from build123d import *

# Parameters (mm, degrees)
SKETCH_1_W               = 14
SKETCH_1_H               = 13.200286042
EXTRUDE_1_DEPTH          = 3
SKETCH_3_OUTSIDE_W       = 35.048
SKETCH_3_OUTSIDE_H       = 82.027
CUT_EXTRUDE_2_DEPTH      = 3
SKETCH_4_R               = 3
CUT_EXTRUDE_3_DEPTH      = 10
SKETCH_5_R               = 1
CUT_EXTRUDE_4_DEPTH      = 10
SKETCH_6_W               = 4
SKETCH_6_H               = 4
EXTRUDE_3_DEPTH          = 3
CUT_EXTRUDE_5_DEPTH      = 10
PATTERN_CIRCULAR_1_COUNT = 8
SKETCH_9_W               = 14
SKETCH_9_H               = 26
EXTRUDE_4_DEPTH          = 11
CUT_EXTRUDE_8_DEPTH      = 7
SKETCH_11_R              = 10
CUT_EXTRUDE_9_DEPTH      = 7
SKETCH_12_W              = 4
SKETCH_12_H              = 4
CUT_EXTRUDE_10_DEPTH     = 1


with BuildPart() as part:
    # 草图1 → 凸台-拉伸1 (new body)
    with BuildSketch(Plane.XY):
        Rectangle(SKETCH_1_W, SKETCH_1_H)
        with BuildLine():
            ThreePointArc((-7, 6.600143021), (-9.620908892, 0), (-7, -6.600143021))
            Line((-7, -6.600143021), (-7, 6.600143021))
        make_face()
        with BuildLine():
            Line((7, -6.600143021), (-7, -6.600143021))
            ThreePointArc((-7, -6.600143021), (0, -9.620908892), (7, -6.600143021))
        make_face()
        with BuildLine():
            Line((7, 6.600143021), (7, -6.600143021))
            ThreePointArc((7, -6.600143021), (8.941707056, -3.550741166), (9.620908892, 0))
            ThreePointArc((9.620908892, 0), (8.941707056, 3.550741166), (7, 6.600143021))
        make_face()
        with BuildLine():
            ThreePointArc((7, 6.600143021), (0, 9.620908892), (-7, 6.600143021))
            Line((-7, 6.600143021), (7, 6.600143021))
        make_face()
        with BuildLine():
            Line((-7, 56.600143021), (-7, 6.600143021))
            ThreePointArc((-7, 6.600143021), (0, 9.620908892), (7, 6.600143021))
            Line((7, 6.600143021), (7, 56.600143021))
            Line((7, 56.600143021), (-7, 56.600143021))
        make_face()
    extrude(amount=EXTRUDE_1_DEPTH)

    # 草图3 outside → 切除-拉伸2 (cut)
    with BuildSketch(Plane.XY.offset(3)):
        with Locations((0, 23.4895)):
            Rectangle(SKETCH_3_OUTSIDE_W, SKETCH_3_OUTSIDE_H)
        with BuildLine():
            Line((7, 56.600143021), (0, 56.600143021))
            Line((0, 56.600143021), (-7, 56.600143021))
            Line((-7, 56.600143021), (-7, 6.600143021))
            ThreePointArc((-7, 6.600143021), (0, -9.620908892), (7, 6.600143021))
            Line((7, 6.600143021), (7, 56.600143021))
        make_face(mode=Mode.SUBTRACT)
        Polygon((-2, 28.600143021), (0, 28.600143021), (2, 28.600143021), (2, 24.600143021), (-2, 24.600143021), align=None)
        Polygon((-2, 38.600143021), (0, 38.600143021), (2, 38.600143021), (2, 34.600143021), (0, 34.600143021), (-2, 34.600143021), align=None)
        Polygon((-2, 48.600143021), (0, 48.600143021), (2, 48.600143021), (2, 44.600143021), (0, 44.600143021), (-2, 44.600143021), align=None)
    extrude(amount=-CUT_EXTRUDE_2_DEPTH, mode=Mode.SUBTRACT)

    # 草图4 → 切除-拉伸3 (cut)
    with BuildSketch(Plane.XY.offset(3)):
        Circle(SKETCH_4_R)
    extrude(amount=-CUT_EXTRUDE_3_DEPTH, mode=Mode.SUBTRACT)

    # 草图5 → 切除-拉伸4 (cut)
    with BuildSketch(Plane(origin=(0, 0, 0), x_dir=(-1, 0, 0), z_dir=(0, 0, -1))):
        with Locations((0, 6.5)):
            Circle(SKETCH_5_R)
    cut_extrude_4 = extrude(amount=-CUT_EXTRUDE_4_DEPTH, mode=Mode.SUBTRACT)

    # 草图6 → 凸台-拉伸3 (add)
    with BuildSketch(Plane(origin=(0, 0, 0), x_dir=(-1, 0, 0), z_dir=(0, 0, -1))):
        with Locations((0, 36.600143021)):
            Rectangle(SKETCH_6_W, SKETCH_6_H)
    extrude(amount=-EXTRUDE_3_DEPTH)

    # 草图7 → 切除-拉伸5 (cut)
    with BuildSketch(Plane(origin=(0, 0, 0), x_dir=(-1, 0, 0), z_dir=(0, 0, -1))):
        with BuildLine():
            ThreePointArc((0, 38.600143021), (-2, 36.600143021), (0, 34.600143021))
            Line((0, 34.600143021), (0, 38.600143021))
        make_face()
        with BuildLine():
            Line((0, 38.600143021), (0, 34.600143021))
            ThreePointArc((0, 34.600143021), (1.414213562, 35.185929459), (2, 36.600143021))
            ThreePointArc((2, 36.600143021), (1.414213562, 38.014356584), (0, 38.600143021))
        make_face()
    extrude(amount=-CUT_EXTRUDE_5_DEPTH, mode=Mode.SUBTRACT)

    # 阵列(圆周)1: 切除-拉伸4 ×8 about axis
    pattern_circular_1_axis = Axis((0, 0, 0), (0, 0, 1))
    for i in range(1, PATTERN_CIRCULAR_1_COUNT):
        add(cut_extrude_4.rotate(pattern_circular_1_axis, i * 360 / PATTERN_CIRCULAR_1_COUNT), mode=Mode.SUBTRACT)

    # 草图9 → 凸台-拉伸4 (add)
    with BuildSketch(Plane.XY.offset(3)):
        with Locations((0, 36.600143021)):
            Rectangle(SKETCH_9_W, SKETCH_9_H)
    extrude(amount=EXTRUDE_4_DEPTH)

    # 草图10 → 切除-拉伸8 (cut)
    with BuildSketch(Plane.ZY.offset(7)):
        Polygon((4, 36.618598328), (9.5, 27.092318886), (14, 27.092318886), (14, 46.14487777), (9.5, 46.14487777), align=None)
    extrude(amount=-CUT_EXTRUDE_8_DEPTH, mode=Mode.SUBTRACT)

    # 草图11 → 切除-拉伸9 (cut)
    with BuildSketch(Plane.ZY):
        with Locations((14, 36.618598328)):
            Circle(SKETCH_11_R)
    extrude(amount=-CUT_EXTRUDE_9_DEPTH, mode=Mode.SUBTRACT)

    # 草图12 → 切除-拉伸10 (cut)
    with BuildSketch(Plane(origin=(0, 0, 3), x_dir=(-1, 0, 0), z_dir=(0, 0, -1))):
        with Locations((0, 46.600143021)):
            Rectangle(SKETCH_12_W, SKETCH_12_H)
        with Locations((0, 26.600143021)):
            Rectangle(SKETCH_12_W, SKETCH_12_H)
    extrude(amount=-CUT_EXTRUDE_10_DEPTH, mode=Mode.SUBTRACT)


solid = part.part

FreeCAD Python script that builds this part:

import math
import FreeCAD as App
import Part
import Sketcher
Q = App.Units.Quantity

doc = App.newDocument("Part")
body = doc.addObject("PartDesign::Body", "Body")

# Sketch on XY plane
sketch1 = body.newObject("Sketcher::SketchObject", "Sketch")
sketch1.AttachmentSupport = (doc.getObject("XY_Plane"), [""])
sketch1.MapMode = "FlatFace"
sketch1.addGeometry([
    Part.ArcOfCircle(Part.Circle(App.Vector(0, 0, 0), App.Vector(0, 0, 1), 10), math.radians(137), math.radians(223)),  # 0
    Part.ArcOfCircle(Part.Circle(App.Vector(0, 0, 0), App.Vector(0, 0, 1), 10), math.radians(-137), math.radians(-43)),  # 1
    Part.ArcOfCircle(Part.Circle(App.Vector(0, 0, 0), App.Vector(0, 0, 1), 10), math.radians(-43), math.radians(0)),  # 2
    Part.ArcOfCircle(Part.Circle(App.Vector(0, 0, 0), App.Vector(0, 0, 1), 10), math.radians(0), math.radians(43)),  # 3
    Part.LineSegment(App.Vector(7, 7, 0), App.Vector(7, 57, 0)),  # 4
    Part.LineSegment(App.Vector(7, 57, 0), App.Vector(-7, 57, 0)),  # 5
    Part.LineSegment(App.Vector(-7, 57, 0), App.Vector(-7, 7, 0)),  # 6
], False)
sketch1.addConstraint([
    Sketcher.Constraint("Tangent", 0, 2, 1, 1),
    Sketcher.Constraint("Tangent", 1, 2, 2, 1),
    Sketcher.Constraint("Tangent", 2, 2, 3, 1),
    Sketcher.Constraint("Coincident", 3, 2, 4, 1),
    Sketcher.Constraint("Coincident", 4, 2, 5, 1),
    Sketcher.Constraint("Coincident", 5, 2, 6, 1),
    Sketcher.Constraint("Coincident", 6, 2, 0, 1),
    Sketcher.Constraint("Vertical", 4),
    Sketcher.Constraint("Horizontal", 5),
    Sketcher.Constraint("Vertical", 6),
    Sketcher.Constraint("Coincident", 0, 3, -1, 1),
    Sketcher.Constraint("Coincident", 2, 3, -1, 1),
    Sketcher.Constraint("Equal", 2, 3),
    Sketcher.Constraint("PointOnObject", 2, 2, -1),
    Sketcher.Constraint("Horizontal", 0, 2, 1, 2),
    Sketcher.Constraint("Horizontal", 3, 2, 6, 2),
    Sketcher.Constraint("Vertical", 1, 2, 3, 2),
    Sketcher.Constraint("DistanceX", 5, 2, 5, 1, 14.0),
    Sketcher.Constraint("DistanceY", 4, 1, 4, 2, 50.0),
    Sketcher.Constraint("Radius", 0, 9.620909),
])
pad1 = body.newObject("PartDesign::Pad", "Pad")
pad1.Profile = sketch1
pad1.Length = 3

# Sketch on XY plane
sketch2 = body.newObject("Sketcher::SketchObject", "Sketch001")
sketch2.AttachmentSupport = (doc.getObject("XY_Plane"), [""])
sketch2.MapMode = "FlatFace"
sketch2.AttachmentOffset = App.Placement(App.Vector(0, 0, 3), App.Rotation())
sketch2.addGeometry([
    Part.LineSegment(App.Vector(-17.5, 64.5, 0), App.Vector(-17.5, -17.5, 0)),  # 0
    Part.LineSegment(App.Vector(-17.5, -17.5, 0), App.Vector(17.5, -17.5, 0)),  # 1
    Part.LineSegment(App.Vector(17.5, -17.5, 0), App.Vector(17.5, 64.5, 0)),  # 2
    Part.LineSegment(App.Vector(17.5, 64.5, 0), App.Vector(-17.5, 64.5, 0)),  # 3
    Part.LineSegment(App.Vector(-7, 56.6, 0), App.Vector(7, 56.6, 0)),  # 4
    Part.LineSegment(App.Vector(7, 56.6, 0), App.Vector(7, 6.6, 0)),  # 5
    Part.ArcOfCircle(Part.Circle(App.Vector(0, 0, 0), App.Vector(0, 0, 1), 9.6), math.radians(137), math.radians(403)),  # 6
    Part.LineSegment(App.Vector(-7, 6.6, 0), App.Vector(-7, 56.6, 0)),  # 7
    Part.LineSegment(App.Vector(2, 28.6, 0), App.Vector(-2, 28.6, 0)),  # 8
    Part.LineSegment(App.Vector(-2, 28.6, 0), App.Vector(-2, 24.6, 0)),  # 9
    Part.LineSegment(App.Vector(-2, 24.6, 0), App.Vector(2, 24.6, 0)),  # 10
    Part.LineSegment(App.Vector(2, 24.6, 0), App.Vector(2, 28.6, 0)),  # 11
    Part.LineSegment(App.Vector(2, 38.6, 0), App.Vector(-2, 38.6, 0)),  # 12
    Part.LineSegment(App.Vector(-2, 38.6, 0), App.Vector(-2, 34.6, 0)),  # 13
    Part.LineSegment(App.Vector(-2, 34.6, 0), App.Vector(2, 34.6, 0)),  # 14
    Part.LineSegment(App.Vector(2, 34.6, 0), App.Vector(2, 38.6, 0)),  # 15
    Part.LineSegment(App.Vector(2, 48.6, 0), App.Vector(-2, 48.6, 0)),  # 16
    Part.LineSegment(App.Vector(-2, 48.6, 0), App.Vector(-2, 44.6, 0)),  # 17
    Part.LineSegment(App.Vector(-2, 44.6, 0), App.Vector(2, 44.6, 0)),  # 18
    Part.LineSegment(App.Vector(2, 44.6, 0), App.Vector(2, 48.6, 0)),  # 19
], False)
sketch2.addConstraint([
    Sketcher.Constraint("Coincident", 0, 2, 1, 1),
    Sketcher.Constraint("Coincident", 1, 2, 2, 1),
    Sketcher.Constraint("Coincident", 2, 2, 3, 1),
    Sketcher.Constraint("Coincident", 3, 2, 0, 1),
    Sketcher.Constraint("Coincident", 4, 2, 5, 1),
    Sketcher.Constraint("Coincident", 5, 2, 6, 2),
    Sketcher.Constraint("Coincident", 6, 1, 7, 1),
    Sketcher.Constraint("Coincident", 7, 2, 4, 1),
    Sketcher.Constraint("Coincident", 8, 2, 9, 1),
    Sketcher.Constraint("Coincident", 9, 2, 10, 1),
    Sketcher.Constraint("Coincident", 10, 2, 11, 1),
    Sketcher.Constraint("Coincident", 11, 2, 8, 1),
    Sketcher.Constraint("Coincident", 12, 2, 13, 1),
    Sketcher.Constraint("Coincident", 13, 2, 14, 1),
    Sketcher.Constraint("Coincident", 14, 2, 15, 1),
    Sketcher.Constraint("Coincident", 15, 2, 12, 1),
    Sketcher.Constraint("Coincident", 16, 2, 17, 1),
    Sketcher.Constraint("Coincident", 17, 2, 18, 1),
    Sketcher.Constraint("Coincident", 18, 2, 19, 1),
    Sketcher.Constraint("Coincident", 19, 2, 16, 1),
    Sketcher.Constraint("Vertical", 0),
    Sketcher.Constraint("Horizontal", 1),
    Sketcher.Constraint("Vertical", 2),
    Sketcher.Constraint("Horizontal", 3),
    Sketcher.Constraint("Horizontal", 4),
    Sketcher.Constraint("Vertical", 5),
    Sketcher.Constraint("Vertical", 7),
    Sketcher.Constraint("Horizontal", 8),
    Sketcher.Constraint("Vertical", 9),
    Sketcher.Constraint("Horizontal", 10),
    Sketcher.Constraint("Vertical", 11),
    Sketcher.Constraint("Horizontal", 12),
    Sketcher.Constraint("Vertical", 13),
    Sketcher.Constraint("Horizontal", 14),
    Sketcher.Constraint("Vertical", 15),
    Sketcher.Constraint("Horizontal", 16),
    Sketcher.Constraint("Vertical", 17),
    Sketcher.Constraint("Horizontal", 18),
    Sketcher.Constraint("Vertical", 19),
    Sketcher.Constraint("Coincident", 6, 3, -1, 1),
    Sketcher.Constraint("Horizontal", 5, 2, 6, 1),
    Sketcher.Constraint("Vertical", 9, 2, 12, 2),
    Sketcher.Constraint("Vertical", 11, 2, 14, 2),
    Sketcher.Constraint("Vertical", 13, 2, 16, 2),
    Sketcher.Constraint("Vertical", 15, 2, 18, 2),
    Sketcher.Constraint("Equal", 18, 9),
    Sketcher.Constraint("Equal", 11, 13),
    Sketcher.Constraint("Equal", 15, 17),
    Sketcher.Constraint("DistanceX", 4, 1, 4, 2, 14.0),
    Sketcher.Constraint("DistanceX", 8, 2, 8, 1, 4.0),
    Sketcher.Constraint("DistanceY", 5, 2, 5, 1, 50.0),
    Sketcher.Constraint("DistanceX", 8, 2, -1, 1, 2.0),
    Sketcher.Constraint("DistanceY", 6, 1, 8, 2, 22.0),
    Sketcher.Constraint("DistanceY", 8, 2, 12, 2, 10.0),
    Sketcher.Constraint("DistanceY", 16, 2, 7, 2, 8.0),
    Sketcher.Constraint("DistanceX", 1, 1, 1, 2, 35.048),
    Sketcher.Constraint("DistanceY", 0, 2, 0, 1, 82.027),
    Sketcher.Constraint("Radius", 6, 9.620909),
    Sketcher.Constraint("DistanceX", 0, 2, -1, 1, 17.524),
    Sketcher.Constraint("DistanceY", 0, 2, -1, 1, 17.524),
])
pocket1 = body.newObject("PartDesign::Pocket", "Pocket")
pocket1.Profile = sketch2
pocket1.Length = 3

# Sketch on XY plane
sketch3 = body.newObject("Sketcher::SketchObject", "Sketch002")
sketch3.AttachmentSupport = (doc.getObject("XY_Plane"), [""])
sketch3.MapMode = "FlatFace"
sketch3.AttachmentOffset = App.Placement(App.Vector(0, 0, 3), App.Rotation())
sketch3.addGeometry(Part.Circle(App.Vector(0, 0, 0), App.Vector(0, 0, 1), 3), False)
sketch3.addConstraint([
    Sketcher.Constraint("Coincident", 0, 3, -1, 1),
    Sketcher.Constraint("Diameter", 0, 6.0),
])
pocket2 = body.newObject("PartDesign::Pocket", "Pocket001")
pocket2.Profile = sketch3
pocket2.Length = 10

# Sketch on XY plane
sketch4 = body.newObject("Sketcher::SketchObject", "Sketch003")
sketch4.AttachmentSupport = (doc.getObject("XY_Plane"), [""])
sketch4.MapMode = "FlatFace"
sketch4.addGeometry(Part.Circle(App.Vector(0, 6.5, 0), App.Vector(0, 0, 1), 1), False)
sketch4.addConstraint([
    Sketcher.Constraint("PointOnObject", 0, 3, -2),
    Sketcher.Constraint("Diameter", 0, 2.0),
    Sketcher.Constraint("DistanceY", -1, 1, 0, 3, 6.5),
])
pocket3 = body.newObject("PartDesign::Pocket", "Pocket002")
pocket3.Profile = sketch4
pocket3.Length = 10
pocket3.Reversed = True

# Sketch on XY plane
sketch5 = body.newObject("Sketcher::SketchObject", "Sketch004")
sketch5.AttachmentSupport = (doc.getObject("XY_Plane"), [""])
sketch5.MapMode = "FlatFace"
sketch5.addGeometry([
    Part.LineSegment(App.Vector(2, 38.6, 0), App.Vector(2, 34.6, 0)),
    Part.LineSegment(App.Vector(2, 34.6, 0), App.Vector(-2, 34.6, 0)),
    Part.LineSegment(App.Vector(-2, 34.6, 0), App.Vector(-2, 38.6, 0)),
    Part.LineSegment(App.Vector(-2, 38.6, 0), App.Vector(2, 38.6, 0)),
], False)
sketch5.addConstraint([
    Sketcher.Constraint("Coincident", 0, 2, 1, 1),
    Sketcher.Constraint("Coincident", 1, 2, 2, 1),
    Sketcher.Constraint("Coincident", 2, 2, 3, 1),
    Sketcher.Constraint("Coincident", 3, 2, 0, 1),
    Sketcher.Constraint("Vertical", 0),
    Sketcher.Constraint("Horizontal", 1),
    Sketcher.Constraint("Vertical", 2),
    Sketcher.Constraint("Horizontal", 3),
    Sketcher.Constraint("Equal", 3, 0),
    Sketcher.Constraint("DistanceX", 1, 2, 1, 1, 4.0),
    Sketcher.Constraint("DistanceX", -1, 1, 0, 2, 2.0),
    Sketcher.Constraint("DistanceY", -1, 1, 0, 2, 34.600143),
])
pad2 = body.newObject("PartDesign::Pad", "Pad001")
pad2.Profile = sketch5
pad2.Length = 3

# Sketch on XY plane
sketch6 = body.newObject("Sketcher::SketchObject", "Sketch005")
sketch6.AttachmentSupport = (doc.getObject("XY_Plane"), [""])
sketch6.MapMode = "FlatFace"
sketch6.addGeometry([
    Part.ArcOfCircle(Part.Circle(App.Vector(0, 36.6, 0), App.Vector(0, 0, 1), 2), math.radians(-90), math.radians(90)),
    Part.ArcOfCircle(Part.Circle(App.Vector(0, 36.6, 0), App.Vector(0, 0, 1), 2), math.radians(-180), math.radians(-90)),
    Part.ArcOfCircle(Part.Circle(App.Vector(0, 36.6, 0), App.Vector(0, 0, 1), 2), math.radians(90), math.radians(180)),
], False)
sketch6.addConstraint([
    Sketcher.Constraint("Tangent", 0, 1, 1, 2),
    Sketcher.Constraint("Tangent", 1, 1, 2, 2),
    Sketcher.Constraint("Tangent", 2, 1, 0, 2),
    Sketcher.Constraint("PointOnObject", 0, 3, -2),
    Sketcher.Constraint("PointOnObject", 0, 1, -2),
    Sketcher.Constraint("PointOnObject", 2, 1, -2),
    Sketcher.Constraint("Horizontal", 2, 3, 1, 1),
    Sketcher.Constraint("Radius", 0, 2.0),
    Sketcher.Constraint("DistanceY", -1, 1, 0, 3, 36.600143),
])
pocket4 = body.newObject("PartDesign::Pocket", "Pocket003")
pocket4.Profile = sketch6
pocket4.Length = 10
pocket4.Reversed = True
doc.recompute()

polarpattern = body.newObject("PartDesign::PolarPattern", "PolarPattern")
polarpattern.Originals = [pocket3]
polarpattern.Axis = (doc.getObject("Z_Axis"), [""])
polarpattern.Angle = 360
polarpattern.Occurrences = 8
body.Tip = polarpattern

# Sketch on XY plane
sketch7 = body.newObject("Sketcher::SketchObject", "Sketch006")
sketch7.AttachmentSupport = (doc.getObject("XY_Plane"), [""])
sketch7.MapMode = "FlatFace"
sketch7.AttachmentOffset = App.Placement(App.Vector(0, 0, 3), App.Rotation())
sketch7.addGeometry([
    Part.LineSegment(App.Vector(-7, 50, 0), App.Vector(-7, 24, 0)),
    Part.LineSegment(App.Vector(-7, 24, 0), App.Vector(7, 24, 0)),
    Part.LineSegment(App.Vector(7, 24, 0), App.Vector(7, 50, 0)),
    Part.LineSegment(App.Vector(7, 50, 0), App.Vector(-7, 50, 0)),
], False)
sketch7.addConstraint([
    Sketcher.Constraint("Coincident", 0, 2, 1, 1),
    Sketcher.Constraint("Coincident", 1, 2, 2, 1),
    Sketcher.Constraint("Coincident", 2, 2, 3, 1),
    Sketcher.Constraint("Coincident", 3, 2, 0, 1),
    Sketcher.Constraint("Vertical", 0),
    Sketcher.Constraint("Horizontal", 1),
    Sketcher.Constraint("Vertical", 2),
    Sketcher.Constraint("Horizontal", 3),
    Sketcher.Constraint("DistanceX", 1, 1, 1, 2, 14.0),
    Sketcher.Constraint("DistanceY", 0, 2, 0, 1, 26.0),
    Sketcher.Constraint("DistanceX", 0, 2, -1, 1, 7.0),
    Sketcher.Constraint("DistanceY", -1, 1, 0, 2, 23.600143),
])
pad3 = body.newObject("PartDesign::Pad", "Pad002")
pad3.Profile = sketch7
pad3.Length = 11

# Sketch on YZ plane
sketch8 = body.newObject("Sketcher::SketchObject", "Sketch007")
sketch8.AttachmentSupport = (doc.getObject("YZ_Plane"), [""])
sketch8.MapMode = "FlatFace"
sketch8.AttachmentOffset = App.Placement(App.Vector(0, 0, -7), App.Rotation())
sketch8.addGeometry([
    Part.LineSegment(App.Vector(36.6, 4, 0), App.Vector(27.1, 9.5, 0)),  # 0
    Part.LineSegment(App.Vector(27.1, 9.5, 0), App.Vector(27.1, 14, 0)),  # 1
    Part.LineSegment(App.Vector(27.1, 14, 0), App.Vector(46.1, 14, 0)),  # 2
    Part.LineSegment(App.Vector(46.1, 14, 0), App.Vector(46.1, 9.5, 0)),  # 3
    Part.LineSegment(App.Vector(46.1, 9.5, 0), App.Vector(36.6, 4, 0)),  # 4
], False)
sketch8.addConstraint([
    Sketcher.Constraint("Coincident", 0, 2, 1, 1),
    Sketcher.Constraint("Coincident", 1, 2, 2, 1),
    Sketcher.Constraint("Coincident", 2, 2, 3, 1),
    Sketcher.Constraint("Coincident", 3, 2, 4, 1),
    Sketcher.Constraint("Coincident", 4, 2, 0, 1),
    Sketcher.Constraint("Vertical", 1),
    Sketcher.Constraint("Horizontal", 2),
    Sketcher.Constraint("Vertical", 3),
    Sketcher.Constraint("Horizontal", 0, 2, 3, 2),
    Sketcher.Constraint("Equal", 0, 4),
    Sketcher.Constraint("Angle", 0, Q("150 deg")),
    Sketcher.Constraint("Distance", 0, 11.0),
    Sketcher.Constraint("DistanceY", 1, 1, 1, 2, 4.5),
    Sketcher.Constraint("DistanceY", -1, 1, 1, 2, 14.0),
    Sketcher.Constraint("DistanceX", -1, 1, 4, 2, 36.618598),
])
pocket5 = body.newObject("PartDesign::Pocket", "Pocket004")
pocket5.Profile = sketch8
pocket5.Length = 7
pocket5.Reversed = True

# Sketch on YZ plane
sketch9 = body.newObject("Sketcher::SketchObject", "Sketch008")
sketch9.AttachmentSupport = (doc.getObject("YZ_Plane"), [""])
sketch9.MapMode = "FlatFace"
sketch9.addGeometry(Part.Circle(App.Vector(37, 14, 0), App.Vector(0, 0, 1), 10), False)
sketch9.addConstraint([
    Sketcher.Constraint("Diameter", 0, 20.0),
    Sketcher.Constraint("DistanceY", -1, 1, 0, 3, 14.0),
    Sketcher.Constraint("DistanceX", -1, 1, 0, 3, 36.618598),
])
pocket6 = body.newObject("PartDesign::Pocket", "Pocket005")
pocket6.Profile = sketch9
pocket6.Length = 7
pocket6.Reversed = True

# Sketch on XY plane
sketch10 = body.newObject("Sketcher::SketchObject", "Sketch009")
sketch10.AttachmentSupport = (doc.getObject("XY_Plane"), [""])
sketch10.MapMode = "FlatFace"
sketch10.AttachmentOffset = App.Placement(App.Vector(0, 0, 3), App.Rotation())
sketch10.addGeometry([
    Part.LineSegment(App.Vector(2, 48.6, 0), App.Vector(2, 44.6, 0)),  # 0
    Part.LineSegment(App.Vector(2, 44.6, 0), App.Vector(-2, 44.6, 0)),  # 1
    Part.LineSegment(App.Vector(-2, 44.6, 0), App.Vector(-2, 48.6, 0)),  # 2
    Part.LineSegment(App.Vector(-2, 48.6, 0), App.Vector(2, 48.6, 0)),  # 3
    Part.LineSegment(App.Vector(2, 28.6, 0), App.Vector(2, 24.6, 0)),  # 4
    Part.LineSegment(App.Vector(2, 24.6, 0), App.Vector(-2, 24.6, 0)),  # 5
    Part.LineSegment(App.Vector(-2, 24.6, 0), App.Vector(-2, 28.6, 0)),  # 6
    Part.LineSegment(App.Vector(-2, 28.6, 0), App.Vector(2, 28.6, 0)),  # 7
], False)
sketch10.addConstraint([
    Sketcher.Constraint("Coincident", 0, 2, 1, 1),
    Sketcher.Constraint("Coincident", 1, 2, 2, 1),
    Sketcher.Constraint("Coincident", 2, 2, 3, 1),
    Sketcher.Constraint("Coincident", 3, 2, 0, 1),
    Sketcher.Constraint("Coincident", 4, 2, 5, 1),
    Sketcher.Constraint("Coincident", 5, 2, 6, 1),
    Sketcher.Constraint("Coincident", 6, 2, 7, 1),
    Sketcher.Constraint("Coincident", 7, 2, 4, 1),
    Sketcher.Constraint("Vertical", 0),
    Sketcher.Constraint("Horizontal", 1),
    Sketcher.Constraint("Vertical", 2),
    Sketcher.Constraint("Horizontal", 3),
    Sketcher.Constraint("Vertical", 4),
    Sketcher.Constraint("Horizontal", 5),
    Sketcher.Constraint("Vertical", 6),
    Sketcher.Constraint("Horizontal", 7),
    Sketcher.Constraint("Vertical", 3, 2, 4, 2),
    Sketcher.Constraint("Vertical", 2, 2, 5, 2),
    Sketcher.Constraint("Equal", 7, 0),
    Sketcher.Constraint("Equal", 2, 4),
    Sketcher.Constraint("DistanceX", 1, 2, 1, 1, 4.0),
    Sketcher.Constraint("DistanceX", -1, 1, 0, 2, 2.0),
    Sketcher.Constraint("DistanceY", 4, 2, 0, 2, 20.0),
    Sketcher.Constraint("DistanceY", -1, 1, 0, 2, 44.600143),
])
pocket7 = body.newObject("PartDesign::Pocket", "Pocket006")
pocket7.Profile = sketch10
pocket7.Length = 1
pocket7.Reversed = True

doc.recompute()
